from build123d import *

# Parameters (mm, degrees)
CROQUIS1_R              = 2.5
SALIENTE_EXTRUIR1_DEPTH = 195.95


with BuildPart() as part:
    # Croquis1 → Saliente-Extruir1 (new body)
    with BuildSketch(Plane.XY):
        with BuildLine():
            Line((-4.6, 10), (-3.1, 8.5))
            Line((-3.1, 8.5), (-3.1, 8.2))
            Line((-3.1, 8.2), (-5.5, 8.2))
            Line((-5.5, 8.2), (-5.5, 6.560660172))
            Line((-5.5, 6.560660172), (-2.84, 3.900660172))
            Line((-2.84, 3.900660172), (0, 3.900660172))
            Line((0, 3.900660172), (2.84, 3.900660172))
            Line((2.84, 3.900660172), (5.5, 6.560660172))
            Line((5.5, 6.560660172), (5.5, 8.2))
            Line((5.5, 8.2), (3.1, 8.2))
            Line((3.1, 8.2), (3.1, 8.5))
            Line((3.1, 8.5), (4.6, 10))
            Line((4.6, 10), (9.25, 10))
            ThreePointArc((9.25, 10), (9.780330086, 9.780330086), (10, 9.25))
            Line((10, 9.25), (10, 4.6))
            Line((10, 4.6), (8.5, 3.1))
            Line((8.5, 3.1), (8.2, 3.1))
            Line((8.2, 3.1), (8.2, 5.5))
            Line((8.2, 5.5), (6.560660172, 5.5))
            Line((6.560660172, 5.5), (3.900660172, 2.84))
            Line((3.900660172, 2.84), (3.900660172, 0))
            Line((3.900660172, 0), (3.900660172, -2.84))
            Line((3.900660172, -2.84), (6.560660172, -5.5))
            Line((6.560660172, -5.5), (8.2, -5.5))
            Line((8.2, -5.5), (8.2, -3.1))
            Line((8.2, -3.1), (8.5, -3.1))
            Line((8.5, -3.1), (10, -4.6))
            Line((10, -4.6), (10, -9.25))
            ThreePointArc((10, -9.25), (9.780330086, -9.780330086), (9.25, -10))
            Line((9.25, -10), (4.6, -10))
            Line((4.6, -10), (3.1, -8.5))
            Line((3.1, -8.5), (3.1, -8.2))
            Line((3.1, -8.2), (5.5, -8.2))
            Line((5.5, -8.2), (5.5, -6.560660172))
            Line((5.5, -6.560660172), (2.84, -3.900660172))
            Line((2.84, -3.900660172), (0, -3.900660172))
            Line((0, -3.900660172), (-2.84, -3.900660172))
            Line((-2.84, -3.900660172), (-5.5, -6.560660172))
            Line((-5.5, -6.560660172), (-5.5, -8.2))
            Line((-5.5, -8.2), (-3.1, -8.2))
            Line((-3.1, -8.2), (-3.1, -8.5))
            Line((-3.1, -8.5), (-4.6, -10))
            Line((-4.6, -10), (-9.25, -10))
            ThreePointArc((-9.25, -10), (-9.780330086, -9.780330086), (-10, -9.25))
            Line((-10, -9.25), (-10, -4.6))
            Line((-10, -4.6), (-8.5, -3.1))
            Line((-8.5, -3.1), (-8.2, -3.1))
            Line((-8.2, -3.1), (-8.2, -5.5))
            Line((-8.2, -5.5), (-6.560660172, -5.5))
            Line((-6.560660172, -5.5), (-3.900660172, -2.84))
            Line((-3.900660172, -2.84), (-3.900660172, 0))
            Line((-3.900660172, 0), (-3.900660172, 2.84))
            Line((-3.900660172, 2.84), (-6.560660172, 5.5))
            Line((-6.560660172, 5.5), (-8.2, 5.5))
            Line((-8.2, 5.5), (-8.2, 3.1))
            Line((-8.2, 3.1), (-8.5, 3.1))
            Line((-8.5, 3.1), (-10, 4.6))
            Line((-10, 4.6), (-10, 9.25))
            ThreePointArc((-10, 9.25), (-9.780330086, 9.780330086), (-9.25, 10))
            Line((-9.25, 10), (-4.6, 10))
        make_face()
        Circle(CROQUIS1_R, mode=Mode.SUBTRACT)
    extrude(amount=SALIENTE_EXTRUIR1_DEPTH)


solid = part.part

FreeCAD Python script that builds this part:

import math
import FreeCAD as App
import Part
import Sketcher
from FreeCAD import Vector
Q = App.Units.Quantity

doc = App.newDocument("Part")
body = doc.addObject("PartDesign::Body", "Body")

sketch1 = body.newObject("Sketcher::SketchObject", "Sketch")
sketch1.AttachmentSupport = (doc.getObject("XY_Plane"), [""])
sketch1.MapMode = "FlatFace"
sketch1.addGeometry(Part.LineSegment(Vector(-3.1, 8.5, 0), Vector(-4.6, 10, 0)), False)
sketch1.addGeometry(Part.LineSegment(Vector(-4.6, 10, 0), Vector(-9.25, 10, 0)), False)
sketch1.addGeometry(Part.ArcOfCircle(Part.Circle(Vector(-9.25, 9.25, 0), Vector(0, 0, 1), 0.75), math.radians(90), math.radians(180)), False)
sketch1.addGeometry(Part.LineSegment(Vector(-10, 9.25, 0), Vector(-10, 4.6, 0)), False)
sketch1.addGeometry(Part.LineSegment(Vector(-10, 4.6, 0), Vector(-8.5, 3.1, 0)), False)
sketch1.addGeometry(Part.LineSegment(Vector(-8.5, 3.1, 0), Vector(-8.2, 3.1, 0)), False)
sketch1.addGeometry(Part.LineSegment(Vector(-8.2, 3.1, 0), Vector(-8.2, 5.5, 0)), False)
sketch1.addGeometry(Part.LineSegment(Vector(-8.2, 5.5, 0), Vector(-6.56, 5.5, 0)), False)
sketch1.addGeometry(Part.LineSegment(Vector(-6.56, 5.5, 0), Vector(-3.9, 2.84, 0)), False)
sketch1.addGeometry(Part.LineSegment(Vector(-3.9, 2.84, 0), Vector(-3.9, -2.84, 0)), False)
sketch1.addGeometry(Part.LineSegment(Vector(-3.9, -2.84, 0), Vector(-6.56, -5.5, 0)), False)
sketch1.addGeometry(Part.LineSegment(Vector(-6.56, -5.5, 0), Vector(-8.2, -5.5, 0)), False)
sketch1.addGeometry(Part.LineSegment(Vector(-8.2, -5.5, 0), Vector(-8.2, -3.1, 0)), False)
sketch1.addGeometry(Part.LineSegment(Vector(-8.2, -3.1, 0), Vector(-8.5, -3.1, 0)), False)
sketch1.addGeometry(Part.LineSegment(Vector(-8.5, -3.1, 0), Vector(-10, -4.6, 0)), False)
sketch1.addGeometry(Part.LineSegment(Vector(-10, -4.6, 0), Vector(-10, -9.25, 0)), False)
sketch1.addGeometry(Part.ArcOfCircle(Part.Circle(Vector(-9.25, -9.25, 0), Vector(0, 0, 1), 0.75), math.radians(180), math.radians(270)), False)
sketch1.addGeometry(Part.LineSegment(Vector(-9.25, -10, 0), Vector(-4.6, -10, 0)), False)
sketch1.addGeometry(Part.LineSegment(Vector(-4.6, -10, 0), Vector(-3.1, -8.5, 0)), False)
sketch1.addGeometry(Part.LineSegment(Vector(-3.1, -8.5, 0), Vector(-3.1, -8.2, 0)), False)
sketch1.addGeometry(Part.LineSegment(Vector(-3.1, -8.2, 0), Vector(-5.5, -8.2, 0)), False)
sketch1.addGeometry(Part.LineSegment(Vector(-5.5, -8.2, 0), Vector(-5.5, -6.56, 0)), False)
sketch1.addGeometry(Part.LineSegment(Vector(-5.5, -6.56, 0), Vector(-2.84, -3.9, 0)), False)
sketch1.addGeometry(Part.LineSegment(Vector(-2.84, -3.9, 0), Vector(2.84, -3.9, 0)), False)
sketch1.addGeometry(Part.LineSegment(Vector(2.84, -3.9, 0), Vector(5.5, -6.56, 0)), False)
sketch1.addGeometry(Part.LineSegment(Vector(5.5, -6.56, 0), Vector(5.5, -8.2, 0)), False)
sketch1.addGeometry(Part.LineSegment(Vector(5.5, -8.2, 0), Vector(3.1, -8.2, 0)), False)
sketch1.addGeometry(Part.LineSegment(Vector(3.1, -8.2, 0), Vector(3.1, -8.5, 0)), False)
sketch1.addGeometry(Part.LineSegment(Vector(3.1, -8.5, 0), Vector(4.6, -10, 0)), False)
sketch1.addGeometry(Part.LineSegment(Vector(4.6, -10, 0), Vector(9.25, -10, 0)), False)
sketch1.addGeometry(Part.ArcOfCircle(Part.Circle(Vector(9.25, -9.25, 0), Vector(0, 0, 1), 0.75), math.radians(-90), math.radians(0)), False)
sketch1.addGeometry(Part.LineSegment(Vector(10, -9.25, 0), Vector(10, -4.6, 0)), False)
sketch1.addGeometry(Part.LineSegment(Vector(10, -4.6, 0), Vector(8.5, -3.1, 0)), False)
sketch1.addGeometry(Part.LineSegment(Vector(8.5, -3.1, 0), Vector(8.2, -3.1, 0)), False)
sketch1.addGeometry(Part.LineSegment(Vector(8.2, -3.1, 0), Vector(8.2, -5.5, 0)), False)
sketch1.addGeometry(Part.LineSegment(Vector(8.2, -5.5, 0), Vector(6.56, -5.5, 0)), False)
sketch1.addGeometry(Part.LineSegment(Vector(6.56, -5.5, 0), Vector(3.9, -2.84, 0)), False)
sketch1.addGeometry(Part.LineSegment(Vector(3.9, -2.84, 0), Vector(3.9, 2.84, 0)), False)
sketch1.addGeometry(Part.LineSegment(Vector(3.9, 2.84, 0), Vector(6.56, 5.5, 0)), False)
sketch1.addGeometry(Part.LineSegment(Vector(6.56, 5.5, 0), Vector(8.2, 5.5, 0)), False)
sketch1.addGeometry(Part.LineSegment(Vector(8.2, 5.5, 0), Vector(8.2, 3.1, 0)), False)
sketch1.addGeometry(Part.LineSegment(Vector(8.2, 3.1, 0), Vector(8.5, 3.1, 0)), False)
sketch1.addGeometry(Part.LineSegment(Vector(8.5, 3.1, 0), Vector(10, 4.6, 0)), False)
sketch1.addGeometry(Part.LineSegment(Vector(10, 4.6, 0), Vector(10, 9.25, 0)), False)
sketch1.addGeometry(Part.ArcOfCircle(Part.Circle(Vector(9.25, 9.25, 0), Vector(0, 0, 1), 0.75), math.radians(0), math.radians(90)), False)
sketch1.addGeometry(Part.LineSegment(Vector(9.25, 10, 0), Vector(4.6, 10, 0)), False)
sketch1.addGeometry(Part.LineSegment(Vector(4.6, 10, 0), Vector(3.1, 8.5, 0)), False)
sketch1.addGeometry(Part.LineSegment(Vector(3.1, 8.5, 0), Vector(3.1, 8.2, 0)), False)
sketch1.addGeometry(Part.LineSegment(Vector(3.1, 8.2, 0), Vector(5.5, 8.2, 0)), False)
sketch1.addGeometry(Part.LineSegment(Vector(5.5, 8.2, 0), Vector(5.5, 6.56, 0)), False)
sketch1.addGeometry(Part.LineSegment(Vector(5.5, 6.56, 0), Vector(2.84, 3.9, 0)), False)
sketch1.addGeometry(Part.LineSegment(Vector(2.84, 3.9, 0), Vector(-2.84, 3.9, 0)), False)
sketch1.addGeometry(Part.LineSegment(Vector(-2.84, 3.9, 0), Vector(-5.5, 6.56, 0)), False)
sketch1.addGeometry(Part.LineSegment(Vector(-5.5, 6.56, 0), Vector(-5.5, 8.2, 0)), False)
sketch1.addGeometry(Part.LineSegment(Vector(-5.5, 8.2, 0), Vector(-3.1, 8.2, 0)), False)
sketch1.addGeometry(Part.LineSegment(Vector(-3.1, 8.2, 0), Vector(-3.1, 8.5, 0)), False)
sketch1.addGeometry(Part.Circle(Vector(0, 0, 0), Vector(0, 0, 1), 2.5), False)
sketch1.addConstraint(Sketcher.Constraint("Coincident", 0, 2, 1, 1))
sketch1.addConstraint(Sketcher.Constraint("Tangent", 1, 2, 2, 1))
sketch1.addConstraint(Sketcher.Constraint("Tangent", 2, 2, 3, 1))
sketch1.addConstraint(Sketcher.Constraint("Coincident", 3, 2, 4, 1))
sketch1.addConstraint(Sketcher.Constraint("Coincident", 4, 2, 5, 1))
sketch1.addConstraint(Sketcher.Constraint("Coincident", 5, 2, 6, 1))
sketch1.addConstraint(Sketcher.Constraint("Coincident", 6, 2, 7, 1))
sketch1.addConstraint(Sketcher.Constraint("Coincident", 7, 2, 8, 1))
sketch1.addConstraint(Sketcher.Constraint("Coincident", 8, 2, 9, 1))
sketch1.addConstraint(Sketcher.Constraint("Coincident", 9, 2, 10, 1))
sketch1.addConstraint(Sketcher.Constraint("Coincident", 10, 2, 11, 1))
sketch1.addConstraint(Sketcher.Constraint("Coincident", 11, 2, 12, 1))
sketch1.addConstraint(Sketcher.Constraint("Coincident", 12, 2, 13, 1))
sketch1.addConstraint(Sketcher.Constraint("Coincident", 13, 2, 14, 1))
sketch1.addConstraint(Sketcher.Constraint("Coincident", 14, 2, 15, 1))
sketch1.addConstraint(Sketcher.Constraint("Tangent", 15, 2, 16, 1))
sketch1.addConstraint(Sketcher.Constraint("Tangent", 16, 2, 17, 1))
sketch1.addConstraint(Sketcher.Constraint("Coincident", 17, 2, 18, 1))
sketch1.addConstraint(Sketcher.Constraint("Coincident", 18, 2, 19, 1))
sketch1.addConstraint(Sketcher.Constraint("Coincident", 19, 2, 20, 1))
sketch1.addConstraint(Sketcher.Constraint("Coincident", 20, 2, 21, 1))
sketch1.addConstraint(Sketcher.Constraint("Coincident", 21, 2, 22, 1))
sketch1.addConstraint(Sketcher.Constraint("Coincident", 22, 2, 23, 1))
sketch1.addConstraint(Sketcher.Constraint("Coincident", 23, 2, 24, 1))
sketch1.addConstraint(Sketcher.Constraint("Coincident", 24, 2, 25, 1))
sketch1.addConstraint(Sketcher.Constraint("Coincident", 25, 2, 26, 1))
sketch1.addConstraint(Sketcher.Constraint("Coincident", 26, 2, 27, 1))
sketch1.addConstraint(Sketcher.Constraint("Coincident", 27, 2, 28, 1))
sketch1.addConstraint(Sketcher.Constraint("Coincident", 28, 2, 29, 1))
sketch1.addConstraint(Sketcher.Constraint("Tangent", 29, 2, 30, 1))
sketch1.addConstraint(Sketcher.Constraint("Tangent", 30, 2, 31, 1))
sketch1.addConstraint(Sketcher.Constraint("Coincident", 31, 2, 32, 1))
sketch1.addConstraint(Sketcher.Constraint("Coincident", 32, 2, 33, 1))
sketch1.addConstraint(Sketcher.Constraint("Coincident", 33, 2, 34, 1))
sketch1.addConstraint(Sketcher.Constraint("Coincident", 34, 2, 35, 1))
sketch1.addConstraint(Sketcher.Constraint("Coincident", 35, 2, 36, 1))
sketch1.addConstraint(Sketcher.Constraint("Coincident", 36, 2, 37, 1))
sketch1.addConstraint(Sketcher.Constraint("Coincident", 37, 2, 38, 1))
sketch1.addConstraint(Sketcher.Constraint("Coincident", 38, 2, 39, 1))
sketch1.addConstraint(Sketcher.Constraint("Coincident", 39, 2, 40, 1))
sketch1.addConstraint(Sketcher.Constraint("Coincident", 40, 2, 41, 1))
sketch1.addConstraint(Sketcher.Constraint("Coincident", 41, 2, 42, 1))
sketch1.addConstraint(Sketcher.Constraint("Coincident", 42, 2, 43, 1))
sketch1.addConstraint(Sketcher.Constraint("Tangent", 43, 2, 44, 1))
sketch1.addConstraint(Sketcher.Constraint("Tangent", 44, 2, 45, 1))
sketch1.addConstraint(Sketcher.Constraint("Coincident", 45, 2, 46, 1))
sketch1.addConstraint(Sketcher.Constraint("Coincident", 46, 2, 47, 1))
sketch1.addConstraint(Sketcher.Constraint("Coincident", 47, 2, 48, 1))
sketch1.addConstraint(Sketcher.Constraint("Coincident", 48, 2, 49, 1))
sketch1.addConstraint(Sketcher.Constraint("Coincident", 49, 2, 50, 1))
sketch1.addConstraint(Sketcher.Constraint("Coincident", 50, 2, 51, 1))
sketch1.addConstraint(Sketcher.Constraint("Coincident", 51, 2, 52, 1))
sketch1.addConstraint(Sketcher.Constraint("Coincident", 52, 2, 53, 1))
sketch1.addConstraint(Sketcher.Constraint("Coincident", 53, 2, 54, 1))
sketch1.addConstraint(Sketcher.Constraint("Coincident", 54, 2, 55, 1))
sketch1.addConstraint(Sketcher.Constraint("Coincident", 55, 2, 0, 1))
sketch1.addConstraint(Sketcher.Constraint("Horizontal", 1))
sketch1.addConstraint(Sketcher.Constraint("Vertical", 3))
sketch1.addConstraint(Sketcher.Constraint("Horizontal", 5))
sketch1.addConstraint(Sketcher.Constraint("Vertical", 6))
sketch1.addConstraint(Sketcher.Constraint("Horizontal", 7))
sketch1.addConstraint(Sketcher.Constraint("Vertical", 9))
sketch1.addConstraint(Sketcher.Constraint("Horizontal", 11))
sketch1.addConstraint(Sketcher.Constraint("Vertical", 12))
sketch1.addConstraint(Sketcher.Constraint("Horizontal", 13))
sketch1.addConstraint(Sketcher.Constraint("Vertical", 15))
sketch1.addConstraint(Sketcher.Constraint("Horizontal", 17))
sketch1.addConstraint(Sketcher.Constraint("Vertical", 19))
sketch1.addConstraint(Sketcher.Constraint("Horizontal", 20))
sketch1.addConstraint(Sketcher.Constraint("Vertical", 21))
sketch1.addConstraint(Sketcher.Constraint("Horizontal", 23))
sketch1.addConstraint(Sketcher.Constraint("Vertical", 25))
sketch1.addConstraint(Sketcher.Constraint("Horizontal", 26))
sketch1.addConstraint(Sketcher.Constraint("Vertical", 27))
sketch1.addConstraint(Sketcher.Constraint("Horizontal", 29))
sketch1.addConstraint(Sketcher.Constraint("Vertical", 31))
sketch1.addConstraint(Sketcher.Constraint("Horizontal", 33))
sketch1.addConstraint(Sketcher.Constraint("Vertical", 34))
sketch1.addConstraint(Sketcher.Constraint("Horizontal", 35))
sketch1.addConstraint(Sketcher.Constraint("Vertical", 37))
sketch1.addConstraint(Sketcher.Constraint("Horizontal", 39))
sketch1.addConstraint(Sketcher.Constraint("Vertical", 40))
sketch1.addConstraint(Sketcher.Constraint("Horizontal", 41))
sketch1.addConstraint(Sketcher.Constraint("Vertical", 43))
sketch1.addConstraint(Sketcher.Constraint("Horizontal", 45))
sketch1.addConstraint(Sketcher.Constraint("Vertical", 47))
sketch1.addConstraint(Sketcher.Constraint("Horizontal", 48))
sketch1.addConstraint(Sketcher.Constraint("Vertical", 49))
sketch1.addConstraint(Sketcher.Constraint("Horizontal", 51))
sketch1.addConstraint(Sketcher.Constraint("Vertical", 53))
sketch1.addConstraint(Sketcher.Constraint("Horizontal", 54))
sketch1.addConstraint(Sketcher.Constraint("Vertical", 55))
sketch1.addConstraint(Sketcher.Constraint("Coincident", 56, 3, -1, 1))
sketch1.addConstraint(Sketcher.Constraint("Equal", 2, 16))
sketch1.addConstraint(Sketcher.Constraint("Equal", 16, 30))
sketch1.addConstraint(Sketcher.Constraint("Equal", 30, 44))
sketch1.addConstraint(Sketcher.Constraint("Symmetric", 2, 3, 30, 3, -1, 1))
sketch1.addConstraint(Sketcher.Constraint("Symmetric", 16, 3, 44, 3, -1, 1))
sketch1.addConstraint(Sketcher.Constraint("Symmetric", 4, 2, 32, 2, -1, 1))
sketch1.addConstraint(Sketcher.Constraint("Symmetric", 6, 2, 34, 2, -1, 1))
sketch1.addConstraint(Sketcher.Constraint("Symmetric", 8, 2, 36, 2, -1, 1))
sketch1.addConstraint(Sketcher.Constraint("Symmetric", 10, 2, 38, 2, -1, 1))
sketch1.addConstraint(Sketcher.Constraint("Symmetric", 12, 2, 40, 2, -1, 1))
sketch1.addConstraint(Sketcher.Constraint("Symmetric", 18, 2, 46, 2, -1, 1))
sketch1.addConstraint(Sketcher.Constraint("Symmetric", 20, 2, 48, 2, -1, 1))
sketch1.addConstraint(Sketcher.Constraint("Symmetric", 22, 2, 50, 2, -1, 1))
sketch1.addConstraint(Sketcher.Constraint("Symmetric", 24, 2, 52, 2, -1, 1))
sketch1.addConstraint(Sketcher.Constraint("Symmetric", 26, 2, 54, 2, -1, 1))
sketch1.addConstraint(Sketcher.Constraint("Symmetric", 16, 3, 30, 3, -2))
sketch1.addConstraint(Sketcher.Constraint("Symmetric", 21, 2, 24, 2, -2))
sketch1.addConstraint(Sketcher.Constraint("Symmetric", 19, 2, 26, 2, -2))
sketch1.addConstraint(Sketcher.Constraint("Symmetric", 13, 2, 32, 2, -2))
sketch1.addConstraint(Sketcher.Constraint("Symmetric", 11, 2, 34, 2, -2))
sketch1.addConstraint(Sketcher.Constraint("Parallel", 0, 4))
sketch1.addConstraint(Sketcher.Constraint("Parallel", 4, 8))
sketch1.addConstraint(Sketcher.Constraint("Perpendicular", 8, 10))
sketch1.addConstraint(Sketcher.Constraint("Parallel", 10, 14))
sketch1.addConstraint(Sketcher.Constraint("Parallel", 14, 18))
sketch1.addConstraint(Sketcher.Constraint("Parallel", 18, 22))
sketch1.addConstraint(Sketcher.Constraint("Perpendicular", 22, 24))
sketch1.addConstraint(Sketcher.Constraint("Parallel", 24, 28))
sketch1.addConstraint(Sketcher.Constraint("Parallel", 28, 32))
sketch1.addConstraint(Sketcher.Constraint("Parallel", 32, 36))
sketch1.addConstraint(Sketcher.Constraint("Perpendicular", 36, 38))
sketch1.addConstraint(Sketcher.Constraint("Parallel", 38, 42))
sketch1.addConstraint(Sketcher.Constraint("Parallel", 42, 46))
sketch1.addConstraint(Sketcher.Constraint("Parallel", 46, 50))
sketch1.addConstraint(Sketcher.Constraint("Perpendicular", 50, 52))
sketch1.addConstraint(Sketcher.Constraint("Horizontal", 18, 2, 27, 2))
sketch1.addConstraint(Sketcher.Constraint("Horizontal", 14, 2, 31, 2))
sketch1.addConstraint(Sketcher.Constraint("Horizontal", 9, 2, 36, 2))
sketch1.addConstraint(Sketcher.Constraint("Horizontal", 3, 2, 42, 2))
sketch1.addConstraint(Sketcher.Constraint("Horizontal", 46, 2, 55, 2))
sketch1.addConstraint(Sketcher.Constraint("Equal", 45, 3))
sketch1.addConstraint(Sketcher.Constraint("Equal", 54, 6))
sketch1.addConstraint(Sketcher.Constraint("Equal", 51, 9))
sketch1.addConstraint(Sketcher.Constraint("Equal", 41, 19))
sketch1.addConstraint(Sketcher.Constraint("Equal", 39, 21))
sketch1.addConstraint(Sketcher.Constraint("Equal", 0, 4))
sketch1.addConstraint(Sketcher.Constraint("Equal", 10, 22))
sketch1.addConstraint(Sketcher.Constraint("Diameter", 56, Q("5 mm")))
sketch1.addConstraint(Sketcher.Constraint("Radius", 2, Q("0.75 mm")))
sketch1.addConstraint(Sketcher.Constraint("DistanceX", 5, 1, 5, 2, Q("0.3 mm")))
sketch1.addConstraint(Sketcher.Constraint("DistanceX", 20, 2, 20, 1, Q("2.4 mm")))
sketch1.addConstraint(Sketcher.Constraint("DistanceY", -1, 1, 0, 2, Q("10 mm")))
sketch1.addConstraint(Sketcher.Constraint("DistanceX", 1, 2, 1, 1, Q("4.65 mm")))
sketch1.addConstraint(Sketcher.Constraint("DistanceX", 23, 1, 23, 2, Q("5.68 mm")))
sketch1.addConstraint(Sketcher.Constraint("DistanceX", 4, 2, -1, 1, Q("8.5 mm")))
sketch1.addConstraint(Sketcher.Constraint("DistanceX", 7, 1, 7, 2, Q("1.63934 mm")))
pad1 = body.newObject("PartDesign::Pad", "Pad")
pad1.Profile = sketch1
pad1.Length = 195.95

doc.recompute()
